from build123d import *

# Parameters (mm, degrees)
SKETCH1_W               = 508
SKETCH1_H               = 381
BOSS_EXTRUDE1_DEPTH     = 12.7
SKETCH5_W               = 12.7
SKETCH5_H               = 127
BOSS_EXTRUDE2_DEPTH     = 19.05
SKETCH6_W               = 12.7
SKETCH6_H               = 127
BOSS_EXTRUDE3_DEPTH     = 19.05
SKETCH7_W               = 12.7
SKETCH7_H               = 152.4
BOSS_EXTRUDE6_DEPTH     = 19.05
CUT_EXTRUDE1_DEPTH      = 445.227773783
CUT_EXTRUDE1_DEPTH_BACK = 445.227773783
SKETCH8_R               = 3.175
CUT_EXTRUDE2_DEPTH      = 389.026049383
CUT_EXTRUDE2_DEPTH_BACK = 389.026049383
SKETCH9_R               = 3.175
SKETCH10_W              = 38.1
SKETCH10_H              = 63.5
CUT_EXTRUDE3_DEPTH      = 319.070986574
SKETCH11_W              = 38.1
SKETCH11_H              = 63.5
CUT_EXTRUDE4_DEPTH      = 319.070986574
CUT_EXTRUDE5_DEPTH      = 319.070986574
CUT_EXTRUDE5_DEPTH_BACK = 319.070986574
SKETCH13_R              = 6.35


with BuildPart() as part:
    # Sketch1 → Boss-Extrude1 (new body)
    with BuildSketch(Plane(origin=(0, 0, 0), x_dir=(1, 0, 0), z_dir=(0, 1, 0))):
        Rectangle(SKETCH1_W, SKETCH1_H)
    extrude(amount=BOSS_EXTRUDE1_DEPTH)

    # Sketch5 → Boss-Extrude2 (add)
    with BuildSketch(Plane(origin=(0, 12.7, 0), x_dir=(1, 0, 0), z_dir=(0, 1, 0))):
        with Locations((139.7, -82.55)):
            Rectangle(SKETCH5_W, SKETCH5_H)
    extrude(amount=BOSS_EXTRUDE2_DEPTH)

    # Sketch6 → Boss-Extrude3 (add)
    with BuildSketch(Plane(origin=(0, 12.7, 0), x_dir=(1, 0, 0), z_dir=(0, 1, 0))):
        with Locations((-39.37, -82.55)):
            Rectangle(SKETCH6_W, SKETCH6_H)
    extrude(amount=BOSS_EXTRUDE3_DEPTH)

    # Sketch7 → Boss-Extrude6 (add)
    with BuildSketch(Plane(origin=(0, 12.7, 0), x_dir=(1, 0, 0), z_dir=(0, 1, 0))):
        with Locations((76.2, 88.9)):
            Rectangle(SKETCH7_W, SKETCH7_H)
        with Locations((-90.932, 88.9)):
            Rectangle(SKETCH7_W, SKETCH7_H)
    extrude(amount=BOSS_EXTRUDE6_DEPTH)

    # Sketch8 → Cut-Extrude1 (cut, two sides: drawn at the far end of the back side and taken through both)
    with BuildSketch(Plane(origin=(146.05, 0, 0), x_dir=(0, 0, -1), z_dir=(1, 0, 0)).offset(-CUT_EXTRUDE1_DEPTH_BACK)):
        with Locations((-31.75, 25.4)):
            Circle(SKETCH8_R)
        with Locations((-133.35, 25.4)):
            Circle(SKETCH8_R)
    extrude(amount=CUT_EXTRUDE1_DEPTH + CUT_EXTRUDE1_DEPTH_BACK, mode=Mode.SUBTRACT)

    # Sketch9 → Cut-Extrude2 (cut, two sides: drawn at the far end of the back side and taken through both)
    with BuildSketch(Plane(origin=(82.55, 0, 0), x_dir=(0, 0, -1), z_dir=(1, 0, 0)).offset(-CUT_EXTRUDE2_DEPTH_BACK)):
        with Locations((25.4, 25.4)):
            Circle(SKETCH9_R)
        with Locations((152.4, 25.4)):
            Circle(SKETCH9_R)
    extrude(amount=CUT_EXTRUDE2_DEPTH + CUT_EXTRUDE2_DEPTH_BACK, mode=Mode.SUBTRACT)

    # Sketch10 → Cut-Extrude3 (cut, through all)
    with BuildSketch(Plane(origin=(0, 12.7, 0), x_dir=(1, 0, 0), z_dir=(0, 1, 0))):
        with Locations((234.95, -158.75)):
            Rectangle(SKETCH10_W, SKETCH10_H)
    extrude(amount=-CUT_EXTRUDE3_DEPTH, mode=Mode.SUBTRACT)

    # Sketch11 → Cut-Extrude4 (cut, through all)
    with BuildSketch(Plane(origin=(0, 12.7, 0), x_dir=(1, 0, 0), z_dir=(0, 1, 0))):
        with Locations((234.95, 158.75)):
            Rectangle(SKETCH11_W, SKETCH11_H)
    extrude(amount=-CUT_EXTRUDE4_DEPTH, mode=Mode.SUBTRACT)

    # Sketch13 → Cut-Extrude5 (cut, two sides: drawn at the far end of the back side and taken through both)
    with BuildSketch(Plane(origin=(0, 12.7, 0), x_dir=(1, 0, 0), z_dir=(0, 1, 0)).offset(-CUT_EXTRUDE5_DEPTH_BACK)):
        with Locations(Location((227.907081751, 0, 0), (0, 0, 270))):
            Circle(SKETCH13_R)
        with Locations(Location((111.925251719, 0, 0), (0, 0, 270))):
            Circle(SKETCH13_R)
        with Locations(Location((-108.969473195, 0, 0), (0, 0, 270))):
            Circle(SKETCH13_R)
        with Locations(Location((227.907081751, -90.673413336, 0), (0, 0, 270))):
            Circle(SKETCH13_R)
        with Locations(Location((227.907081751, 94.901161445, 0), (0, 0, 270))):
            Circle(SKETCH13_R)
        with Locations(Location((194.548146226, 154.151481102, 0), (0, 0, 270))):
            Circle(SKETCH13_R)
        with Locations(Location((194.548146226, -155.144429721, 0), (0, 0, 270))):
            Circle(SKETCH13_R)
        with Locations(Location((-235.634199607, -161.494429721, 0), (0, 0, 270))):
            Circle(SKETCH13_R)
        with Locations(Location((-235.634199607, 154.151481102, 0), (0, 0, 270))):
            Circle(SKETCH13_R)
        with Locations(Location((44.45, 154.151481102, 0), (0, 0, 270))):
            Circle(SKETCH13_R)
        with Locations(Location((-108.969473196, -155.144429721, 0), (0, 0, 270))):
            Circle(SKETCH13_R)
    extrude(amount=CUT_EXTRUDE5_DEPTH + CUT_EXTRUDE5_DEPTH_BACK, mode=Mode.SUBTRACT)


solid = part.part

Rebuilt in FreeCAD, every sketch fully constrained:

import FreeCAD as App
import Part
import Sketcher

V = App.Vector
Q = App.Units.Quantity

doc = App.newDocument("Part")
body = doc.addObject("PartDesign::Body", "Body")

sketch1 = body.newObject("Sketcher::SketchObject", "Sketch")
sketch1.AttachmentSupport = (doc.getObject("XZ_Plane"), [""])
sketch1.MapMode = "FlatFace"
sketch1.addGeometry([
    Part.LineSegment(V(-254, -190, 0), V(-254, 190, 0)),
    Part.LineSegment(V(-254, 190, 0), V(254, 190, 0)),
    Part.LineSegment(V(254, 190, 0), V(254, -190, 0)),
    Part.LineSegment(V(254, -190, 0), V(-254, -190, 0)),
], False)
sketch1.addConstraint([
    Sketcher.Constraint("Coincident", 0, 2, 1, 1),
    Sketcher.Constraint("Coincident", 1, 2, 2, 1),
    Sketcher.Constraint("Coincident", 2, 2, 3, 1),
    Sketcher.Constraint("Coincident", 3, 2, 0, 1),
    Sketcher.Constraint("Vertical", 0),
    Sketcher.Constraint("Horizontal", 1),
    Sketcher.Constraint("Vertical", 2),
    Sketcher.Constraint("Horizontal", 3),
    Sketcher.Constraint("Symmetric", 0, 2, 2, 2, -1, 1),
    Sketcher.Constraint("DistanceX", 1, 1, 1, 2, Q("20 in")),
    Sketcher.Constraint("DistanceY", 0, 1, 0, 2, Q("15 in")),
])
pad1 = body.newObject("PartDesign::Pad", "Pad")
pad1.Profile = sketch1
pad1.Length = Q("0.5 in")
pad1.Reversed = True

sketch2 = body.newObject("Sketcher::SketchObject", "Sketch001")
sketch2.AttachmentSupport = (doc.getObject("XZ_Plane"), [""])
sketch2.MapMode = "FlatFace"
sketch2.AttachmentOffset = App.Placement(V(0, 0, -0.5 * 25.4), App.Rotation())
sketch2.addGeometry([
    Part.LineSegment(V(133, 19, 0), V(133, 146, 0)),
    Part.LineSegment(V(133, 146, 0), V(146, 146, 0)),
    Part.LineSegment(V(146, 146, 0), V(146, 19, 0)),
    Part.LineSegment(V(146, 19, 0), V(133, 19, 0)),
], False)
sketch2.addConstraint([
    Sketcher.Constraint("Coincident", 0, 2, 1, 1),
    Sketcher.Constraint("Coincident", 1, 2, 2, 1),
    Sketcher.Constraint("Coincident", 2, 2, 3, 1),
    Sketcher.Constraint("Coincident", 3, 2, 0, 1),
    Sketcher.Constraint("Vertical", 0),
    Sketcher.Constraint("Horizontal", 1),
    Sketcher.Constraint("Vertical", 2),
    Sketcher.Constraint("Horizontal", 3),
    Sketcher.Constraint("DistanceY", 0, 1, 0, 2, Q("5 in")),
    Sketcher.Constraint("DistanceX", 1, 1, 1, 2, Q("0.5 in")),
    Sketcher.Constraint("DistanceX", -1, 1, 0, 2, Q("5.25 in")),
    Sketcher.Constraint("DistanceY", -1, 1, 0, 2, Q("5.75 in")),
])
pad2 = body.newObject("PartDesign::Pad", "Pad001")
pad2.Profile = sketch2
pad2.Length = Q("0.75 in")
pad2.Reversed = True

sketch3 = body.newObject("Sketcher::SketchObject", "Sketch002")
sketch3.AttachmentSupport = (doc.getObject("XZ_Plane"), [""])
sketch3.MapMode = "FlatFace"
sketch3.AttachmentOffset = App.Placement(V(0, 0, -0.5 * 25.4), App.Rotation())
sketch3.addGeometry([
    Part.LineSegment(V(-46, 19, 0), V(-46, 146, 0)),
    Part.LineSegment(V(-46, 146, 0), V(-33, 146, 0)),
    Part.LineSegment(V(-33, 146, 0), V(-33, 19, 0)),
    Part.LineSegment(V(-33, 19, 0), V(-46, 19, 0)),
], False)
sketch3.addConstraint([
    Sketcher.Constraint("Coincident", 0, 2, 1, 1),
    Sketcher.Constraint("Coincident", 1, 2, 2, 1),
    Sketcher.Constraint("Coincident", 2, 2, 3, 1),
    Sketcher.Constraint("Coincident", 3, 2, 0, 1),
    Sketcher.Constraint("Vertical", 0),
    Sketcher.Constraint("Horizontal", 1),
    Sketcher.Constraint("Vertical", 2),
    Sketcher.Constraint("Horizontal", 3),
    Sketcher.Constraint("DistanceY", 0, 1, 0, 2, Q("5 in")),
    Sketcher.Constraint("DistanceX", 1, 1, 1, 2, Q("0.5 in")),
    Sketcher.Constraint("DistanceX", 0, 2, -1, 1, Q("1.8 in")),
    Sketcher.Constraint("DistanceY", -1, 1, 0, 2, Q("5.75 in")),
])
pad3 = body.newObject("PartDesign::Pad", "Pad002")
pad3.Profile = sketch3
pad3.Length = Q("0.75 in")
pad3.Reversed = True

sketch4 = body.newObject("Sketcher::SketchObject", "Sketch003")
sketch4.AttachmentSupport = (doc.getObject("XZ_Plane"), [""])
sketch4.MapMode = "FlatFace"
sketch4.AttachmentOffset = App.Placement(V(0, 0, -0.5 * 25.4), App.Rotation())
sketch4.addGeometry([
    Part.LineSegment(V(70, -165, 0), V(70, -13, 0)),
    Part.LineSegment(V(70, -13, 0), V(83, -13, 0)),
    Part.LineSegment(V(83, -13, 0), V(83, -165, 0)),
    Part.LineSegment(V(83, -165, 0), V(70, -165, 0)),
    Part.LineSegment(V(-97, -165, 0), V(-97, -13, 0)),
    Part.LineSegment(V(-97, -13, 0), V(-85, -13, 0)),
    Part.LineSegment(V(-85, -13, 0), V(-85, -165, 0)),
    Part.LineSegment(V(-85, -165, 0), V(-97, -165, 0)),
], False)
sketch4.addConstraint([
    Sketcher.Constraint("Coincident", 0, 2, 1, 1),
    Sketcher.Constraint("Coincident", 1, 2, 2, 1),
    Sketcher.Constraint("Coincident", 2, 2, 3, 1),
    Sketcher.Constraint("Coincident", 3, 2, 0, 1),
    Sketcher.Constraint("Coincident", 4, 2, 5, 1),
    Sketcher.Constraint("Coincident", 5, 2, 6, 1),
    Sketcher.Constraint("Coincident", 6, 2, 7, 1),
    Sketcher.Constraint("Coincident", 7, 2, 4, 1),
    Sketcher.Constraint("Vertical", 0),
    Sketcher.Constraint("Horizontal", 1),
    Sketcher.Constraint("Vertical", 2),
    Sketcher.Constraint("Horizontal", 3),
    Sketcher.Constraint("Vertical", 4),
    Sketcher.Constraint("Horizontal", 5),
    Sketcher.Constraint("Vertical", 6),
    Sketcher.Constraint("Horizontal", 7),
    Sketcher.Constraint("Horizontal", 1, 2, 4, 2),
    Sketcher.Constraint("Horizontal", 3, 2, 6, 2),
    Sketcher.Constraint("Equal", 3, 5),
    Sketcher.Constraint("DistanceY", 0, 1, 0, 2, Q("6 in")),
    Sketcher.Constraint("DistanceX", 1, 1, 1, 2, Q("0.5 in")),
    Sketcher.Constraint("DistanceY", 0, 2, -1, 1, Q("0.5 in")),
    Sketcher.Constraint("DistanceX", -1, 1, 0, 2, Q("2.75 in")),
    Sketcher.Constraint("DistanceX", 4, 2, -1, 1, Q("3.83 in")),
])
pad4 = body.newObject("PartDesign::Pad", "Pad003")
pad4.Profile = sketch4
pad4.Length = Q("0.75 in")
pad4.Reversed = True

sketch5 = body.newObject("Sketcher::SketchObject", "Sketch004")
sketch5.AttachmentSupport = (doc.getObject("YZ_Plane"), [""])
sketch5.MapMode = "FlatFace"
sketch5.AttachmentOffset = App.Placement(V(0, 0, 5.75 * 25.4), App.Rotation())
sketch5.addGeometry([
    Part.Circle(V(25.4, 31.8, 0), V(0, 0, 1), 3.2),
    Part.Circle(V(25.4, 133.3, 0), V(0, 0, 1), 3.2),
], False)
sketch5.addConstraint([
    Sketcher.Constraint("Equal", 0, 1),
    Sketcher.Constraint("Vertical", 0, 3, 1, 3),
    Sketcher.Constraint("Diameter", 0, Q("0.25 in")),
    Sketcher.Constraint("DistanceX", -1, 1, 0, 3, Q("1 in")),
    Sketcher.Constraint("DistanceY", 0, 3, 1, 3, Q("4 in")),
    Sketcher.Constraint("DistanceY", -1, 1, 0, 3, Q("1.25 in")),
])
pocket1 = body.newObject("PartDesign::Pocket", "Pocket")
pocket1.Profile = sketch5
pocket1.Type = "ThroughAll"
pocket1.Midplane = True

sketch6 = body.newObject("Sketcher::SketchObject", "Sketch005")
sketch6.AttachmentSupport = (doc.getObject("YZ_Plane"), [""])
sketch6.MapMode = "FlatFace"
sketch6.AttachmentOffset = App.Placement(V(0, 0, 3.25 * 25.4), App.Rotation())
sketch6.addGeometry([
    Part.Circle(V(25.4, -25.4, 0), V(0, 0, 1), 3.2),
    Part.Circle(V(25.4, -152.4, 0), V(0, 0, 1), 3.2),
], False)
sketch6.addConstraint([
    Sketcher.Constraint("Equal", 0, 1),
    Sketcher.Constraint("Vertical", 0, 3, 1, 3),
    Sketcher.Constraint("Diameter", 0, Q("0.25 in")),
    Sketcher.Constraint("DistanceX", -1, 1, 0, 3, Q("1 in")),
    Sketcher.Constraint("DistanceY", 0, 3, -1, 1, Q("1 in")),
    Sketcher.Constraint("DistanceY", 1, 3, -1, 1, Q("6 in")),
])
pocket2 = body.newObject("PartDesign::Pocket", "Pocket001")
pocket2.Profile = sketch6
pocket2.Type = "ThroughAll"
pocket2.Midplane = True

sketch7 = body.newObject("Sketcher::SketchObject", "Sketch006")
sketch7.AttachmentSupport = (doc.getObject("XZ_Plane"), [""])
sketch7.MapMode = "FlatFace"
sketch7.AttachmentOffset = App.Placement(V(0, 0, -0.5 * 25.4), App.Rotation())
sketch7.addGeometry([
    Part.LineSegment(V(216, 127, 0), V(216, 190, 0)),
    Part.LineSegment(V(216, 190, 0), V(254, 190, 0)),
    Part.LineSegment(V(254, 190, 0), V(254, 127, 0)),
    Part.LineSegment(V(254, 127, 0), V(216, 127, 0)),
], False)
sketch7.addConstraint([
    Sketcher.Constraint("Coincident", 0, 2, 1, 1),
    Sketcher.Constraint("Coincident", 1, 2, 2, 1),
    Sketcher.Constraint("Coincident", 2, 2, 3, 1),
    Sketcher.Constraint("Coincident", 3, 2, 0, 1),
    Sketcher.Constraint("Vertical", 0),
    Sketcher.Constraint("Horizontal", 1),
    Sketcher.Constraint("Vertical", 2),
    Sketcher.Constraint("Horizontal", 3),
    Sketcher.Constraint("DistanceX", 1, 1, 1, 2, Q("1.5 in")),
    Sketcher.Constraint("DistanceY", 0, 1, 0, 2, Q("2.5 in")),
    Sketcher.Constraint("DistanceX", -1, 1, 1, 2, Q("10 in")),
    Sketcher.Constraint("DistanceY", -1, 1, 2, 2, Q("5 in")),
])
pocket3 = body.newObject("PartDesign::Pocket", "Pocket002")
pocket3.Profile = sketch7
pocket3.Type = "ThroughAll"
pocket3.Reversed = True

sketch8 = body.newObject("Sketcher::SketchObject", "Sketch007")
sketch8.AttachmentSupport = (doc.getObject("XZ_Plane"), [""])
sketch8.MapMode = "FlatFace"
sketch8.AttachmentOffset = App.Placement(V(0, 0, -0.5 * 25.4), App.Rotation())
sketch8.addGeometry([
    Part.LineSegment(V(216, -190, 0), V(216, -127, 0)),
    Part.LineSegment(V(216, -127, 0), V(254, -127, 0)),
    Part.LineSegment(V(254, -127, 0), V(254, -190, 0)),
    Part.LineSegment(V(254, -190, 0), V(216, -190, 0)),
], False)
sketch8.addConstraint([
    Sketcher.Constraint("Coincident", 0, 2, 1, 1),
    Sketcher.Constraint("Coincident", 1, 2, 2, 1),
    Sketcher.Constraint("Coincident", 2, 2, 3, 1),
    Sketcher.Constraint("Coincident", 3, 2, 0, 1),
    Sketcher.Constraint("Vertical", 0),
    Sketcher.Constraint("Horizontal", 1),
    Sketcher.Constraint("Vertical", 2),
    Sketcher.Constraint("Horizontal", 3),
    Sketcher.Constraint("DistanceX", 1, 1, 1, 2, Q("1.5 in")),
    Sketcher.Constraint("DistanceY", 0, 1, 0, 2, Q("2.5 in")),
    Sketcher.Constraint("DistanceY", 0, 2, -1, 1, Q("5 in")),
    Sketcher.Constraint("DistanceX", -1, 1, 1, 2, Q("10 in")),
])
pocket4 = body.newObject("PartDesign::Pocket", "Pocket003")
pocket4.Profile = sketch8
pocket4.Type = "ThroughAll"
pocket4.Reversed = True

sketch9 = body.newObject("Sketcher::SketchObject", "Sketch008")
sketch9.AttachmentSupport = (doc.getObject("XZ_Plane"), [""])
sketch9.MapMode = "FlatFace"
sketch9.AttachmentOffset = App.Placement(V(0, 0, -0.5 * 25.4), App.Rotation())
sketch9.addGeometry([
    Part.Circle(V(228, 0, 0), V(0, 0, 1), 6),
    Part.Circle(V(112, 0, 0), V(0, 0, 1), 6),
    Part.Circle(V(-109, 0, 0), V(0, 0, 1), 6),
    Part.Circle(V(228, 91, 0), V(0, 0, 1), 6),
    Part.Circle(V(228, -95, 0), V(0, 0, 1), 6),
    Part.Circle(V(195, -154, 0), V(0, 0, 1), 6),
    Part.Circle(V(195, 155, 0), V(0, 0, 1), 6),
    Part.Circle(V(-236, 161, 0), V(0, 0, 1), 6),
    Part.Circle(V(-236, -154, 0), V(0, 0, 1), 6),
    Part.Circle(V(44, -154, 0), V(0, 0, 1), 6),
    Part.Circle(V(-109, 155, 0), V(0, 0, 1), 6),
], False)
sketch9.addConstraint([
    Sketcher.Constraint("Equal", 0, 1),
    Sketcher.Constraint("Equal", 1, 2),
    Sketcher.Constraint("Equal", 2, 3),
    Sketcher.Constraint("Equal", 3, 4),
    Sketcher.Constraint("Equal", 4, 5),
    Sketcher.Constraint("Equal", 5, 6),
    Sketcher.Constraint("Equal", 6, 7),
    Sketcher.Constraint("Equal", 7, 8),
    Sketcher.Constraint("Equal", 8, 9),
    Sketcher.Constraint("Equal", 9, 10),
    Sketcher.Constraint("PointOnObject", 0, 3, -1),
    Sketcher.Constraint("PointOnObject", 1, 3, -1),
    Sketcher.Constraint("PointOnObject", 2, 3, -1),
    Sketcher.Constraint("Horizontal", 5, 3, 8, 3),
    Sketcher.Constraint("Horizontal", 8, 3, 9, 3),
    Sketcher.Constraint("Horizontal", 6, 3, 10, 3),
    Sketcher.Constraint("Vertical", 0, 3, 3, 3),
    Sketcher.Constraint("Vertical", 3, 3, 4, 3),
    Sketcher.Constraint("Vertical", 5, 3, 6, 3),
    Sketcher.Constraint("Vertical", 7, 3, 8, 3),
    Sketcher.Constraint("Vertical", 2, 3, 10, 3),
    Sketcher.Constraint("Diameter", 0, Q("0.5 in")),
    Sketcher.Constraint("DistanceX", -1, 1, 9, 3, Q("1.75 in")),
    Sketcher.Constraint("DistanceY", 6, 3, 7, 3, Q("0.25 in")),
    Sketcher.Constraint("DistanceX", 7, 3, -1, 1, 235.6342),
    Sketcher.Constraint("DistanceX", -1, 1, 0, 3, 227.907082),
    Sketcher.Constraint("DistanceX", -1, 1, 1, 3, 111.925252),
    Sketcher.Constraint("DistanceY", 4, 3, -1, 1, 94.901161),
    Sketcher.Constraint("DistanceY", 5, 3, -1, 1, 154.151481),
    Sketcher.Constraint("DistanceY", -1, 1, 6, 3, 155.14443),
    Sketcher.Constraint("DistanceX", 2, 3, 5, 3, 303.517619),
    Sketcher.Constraint("DistanceX", 2, 3, -1, 1, 108.969473),
    Sketcher.Constraint("DistanceY", -1, 1, 3, 3, 90.673413),
])
pocket5 = body.newObject("PartDesign::Pocket", "Pocket004")
pocket5.Profile = sketch9
pocket5.Type = "ThroughAll"
pocket5.Midplane = True

doc.recompute()
